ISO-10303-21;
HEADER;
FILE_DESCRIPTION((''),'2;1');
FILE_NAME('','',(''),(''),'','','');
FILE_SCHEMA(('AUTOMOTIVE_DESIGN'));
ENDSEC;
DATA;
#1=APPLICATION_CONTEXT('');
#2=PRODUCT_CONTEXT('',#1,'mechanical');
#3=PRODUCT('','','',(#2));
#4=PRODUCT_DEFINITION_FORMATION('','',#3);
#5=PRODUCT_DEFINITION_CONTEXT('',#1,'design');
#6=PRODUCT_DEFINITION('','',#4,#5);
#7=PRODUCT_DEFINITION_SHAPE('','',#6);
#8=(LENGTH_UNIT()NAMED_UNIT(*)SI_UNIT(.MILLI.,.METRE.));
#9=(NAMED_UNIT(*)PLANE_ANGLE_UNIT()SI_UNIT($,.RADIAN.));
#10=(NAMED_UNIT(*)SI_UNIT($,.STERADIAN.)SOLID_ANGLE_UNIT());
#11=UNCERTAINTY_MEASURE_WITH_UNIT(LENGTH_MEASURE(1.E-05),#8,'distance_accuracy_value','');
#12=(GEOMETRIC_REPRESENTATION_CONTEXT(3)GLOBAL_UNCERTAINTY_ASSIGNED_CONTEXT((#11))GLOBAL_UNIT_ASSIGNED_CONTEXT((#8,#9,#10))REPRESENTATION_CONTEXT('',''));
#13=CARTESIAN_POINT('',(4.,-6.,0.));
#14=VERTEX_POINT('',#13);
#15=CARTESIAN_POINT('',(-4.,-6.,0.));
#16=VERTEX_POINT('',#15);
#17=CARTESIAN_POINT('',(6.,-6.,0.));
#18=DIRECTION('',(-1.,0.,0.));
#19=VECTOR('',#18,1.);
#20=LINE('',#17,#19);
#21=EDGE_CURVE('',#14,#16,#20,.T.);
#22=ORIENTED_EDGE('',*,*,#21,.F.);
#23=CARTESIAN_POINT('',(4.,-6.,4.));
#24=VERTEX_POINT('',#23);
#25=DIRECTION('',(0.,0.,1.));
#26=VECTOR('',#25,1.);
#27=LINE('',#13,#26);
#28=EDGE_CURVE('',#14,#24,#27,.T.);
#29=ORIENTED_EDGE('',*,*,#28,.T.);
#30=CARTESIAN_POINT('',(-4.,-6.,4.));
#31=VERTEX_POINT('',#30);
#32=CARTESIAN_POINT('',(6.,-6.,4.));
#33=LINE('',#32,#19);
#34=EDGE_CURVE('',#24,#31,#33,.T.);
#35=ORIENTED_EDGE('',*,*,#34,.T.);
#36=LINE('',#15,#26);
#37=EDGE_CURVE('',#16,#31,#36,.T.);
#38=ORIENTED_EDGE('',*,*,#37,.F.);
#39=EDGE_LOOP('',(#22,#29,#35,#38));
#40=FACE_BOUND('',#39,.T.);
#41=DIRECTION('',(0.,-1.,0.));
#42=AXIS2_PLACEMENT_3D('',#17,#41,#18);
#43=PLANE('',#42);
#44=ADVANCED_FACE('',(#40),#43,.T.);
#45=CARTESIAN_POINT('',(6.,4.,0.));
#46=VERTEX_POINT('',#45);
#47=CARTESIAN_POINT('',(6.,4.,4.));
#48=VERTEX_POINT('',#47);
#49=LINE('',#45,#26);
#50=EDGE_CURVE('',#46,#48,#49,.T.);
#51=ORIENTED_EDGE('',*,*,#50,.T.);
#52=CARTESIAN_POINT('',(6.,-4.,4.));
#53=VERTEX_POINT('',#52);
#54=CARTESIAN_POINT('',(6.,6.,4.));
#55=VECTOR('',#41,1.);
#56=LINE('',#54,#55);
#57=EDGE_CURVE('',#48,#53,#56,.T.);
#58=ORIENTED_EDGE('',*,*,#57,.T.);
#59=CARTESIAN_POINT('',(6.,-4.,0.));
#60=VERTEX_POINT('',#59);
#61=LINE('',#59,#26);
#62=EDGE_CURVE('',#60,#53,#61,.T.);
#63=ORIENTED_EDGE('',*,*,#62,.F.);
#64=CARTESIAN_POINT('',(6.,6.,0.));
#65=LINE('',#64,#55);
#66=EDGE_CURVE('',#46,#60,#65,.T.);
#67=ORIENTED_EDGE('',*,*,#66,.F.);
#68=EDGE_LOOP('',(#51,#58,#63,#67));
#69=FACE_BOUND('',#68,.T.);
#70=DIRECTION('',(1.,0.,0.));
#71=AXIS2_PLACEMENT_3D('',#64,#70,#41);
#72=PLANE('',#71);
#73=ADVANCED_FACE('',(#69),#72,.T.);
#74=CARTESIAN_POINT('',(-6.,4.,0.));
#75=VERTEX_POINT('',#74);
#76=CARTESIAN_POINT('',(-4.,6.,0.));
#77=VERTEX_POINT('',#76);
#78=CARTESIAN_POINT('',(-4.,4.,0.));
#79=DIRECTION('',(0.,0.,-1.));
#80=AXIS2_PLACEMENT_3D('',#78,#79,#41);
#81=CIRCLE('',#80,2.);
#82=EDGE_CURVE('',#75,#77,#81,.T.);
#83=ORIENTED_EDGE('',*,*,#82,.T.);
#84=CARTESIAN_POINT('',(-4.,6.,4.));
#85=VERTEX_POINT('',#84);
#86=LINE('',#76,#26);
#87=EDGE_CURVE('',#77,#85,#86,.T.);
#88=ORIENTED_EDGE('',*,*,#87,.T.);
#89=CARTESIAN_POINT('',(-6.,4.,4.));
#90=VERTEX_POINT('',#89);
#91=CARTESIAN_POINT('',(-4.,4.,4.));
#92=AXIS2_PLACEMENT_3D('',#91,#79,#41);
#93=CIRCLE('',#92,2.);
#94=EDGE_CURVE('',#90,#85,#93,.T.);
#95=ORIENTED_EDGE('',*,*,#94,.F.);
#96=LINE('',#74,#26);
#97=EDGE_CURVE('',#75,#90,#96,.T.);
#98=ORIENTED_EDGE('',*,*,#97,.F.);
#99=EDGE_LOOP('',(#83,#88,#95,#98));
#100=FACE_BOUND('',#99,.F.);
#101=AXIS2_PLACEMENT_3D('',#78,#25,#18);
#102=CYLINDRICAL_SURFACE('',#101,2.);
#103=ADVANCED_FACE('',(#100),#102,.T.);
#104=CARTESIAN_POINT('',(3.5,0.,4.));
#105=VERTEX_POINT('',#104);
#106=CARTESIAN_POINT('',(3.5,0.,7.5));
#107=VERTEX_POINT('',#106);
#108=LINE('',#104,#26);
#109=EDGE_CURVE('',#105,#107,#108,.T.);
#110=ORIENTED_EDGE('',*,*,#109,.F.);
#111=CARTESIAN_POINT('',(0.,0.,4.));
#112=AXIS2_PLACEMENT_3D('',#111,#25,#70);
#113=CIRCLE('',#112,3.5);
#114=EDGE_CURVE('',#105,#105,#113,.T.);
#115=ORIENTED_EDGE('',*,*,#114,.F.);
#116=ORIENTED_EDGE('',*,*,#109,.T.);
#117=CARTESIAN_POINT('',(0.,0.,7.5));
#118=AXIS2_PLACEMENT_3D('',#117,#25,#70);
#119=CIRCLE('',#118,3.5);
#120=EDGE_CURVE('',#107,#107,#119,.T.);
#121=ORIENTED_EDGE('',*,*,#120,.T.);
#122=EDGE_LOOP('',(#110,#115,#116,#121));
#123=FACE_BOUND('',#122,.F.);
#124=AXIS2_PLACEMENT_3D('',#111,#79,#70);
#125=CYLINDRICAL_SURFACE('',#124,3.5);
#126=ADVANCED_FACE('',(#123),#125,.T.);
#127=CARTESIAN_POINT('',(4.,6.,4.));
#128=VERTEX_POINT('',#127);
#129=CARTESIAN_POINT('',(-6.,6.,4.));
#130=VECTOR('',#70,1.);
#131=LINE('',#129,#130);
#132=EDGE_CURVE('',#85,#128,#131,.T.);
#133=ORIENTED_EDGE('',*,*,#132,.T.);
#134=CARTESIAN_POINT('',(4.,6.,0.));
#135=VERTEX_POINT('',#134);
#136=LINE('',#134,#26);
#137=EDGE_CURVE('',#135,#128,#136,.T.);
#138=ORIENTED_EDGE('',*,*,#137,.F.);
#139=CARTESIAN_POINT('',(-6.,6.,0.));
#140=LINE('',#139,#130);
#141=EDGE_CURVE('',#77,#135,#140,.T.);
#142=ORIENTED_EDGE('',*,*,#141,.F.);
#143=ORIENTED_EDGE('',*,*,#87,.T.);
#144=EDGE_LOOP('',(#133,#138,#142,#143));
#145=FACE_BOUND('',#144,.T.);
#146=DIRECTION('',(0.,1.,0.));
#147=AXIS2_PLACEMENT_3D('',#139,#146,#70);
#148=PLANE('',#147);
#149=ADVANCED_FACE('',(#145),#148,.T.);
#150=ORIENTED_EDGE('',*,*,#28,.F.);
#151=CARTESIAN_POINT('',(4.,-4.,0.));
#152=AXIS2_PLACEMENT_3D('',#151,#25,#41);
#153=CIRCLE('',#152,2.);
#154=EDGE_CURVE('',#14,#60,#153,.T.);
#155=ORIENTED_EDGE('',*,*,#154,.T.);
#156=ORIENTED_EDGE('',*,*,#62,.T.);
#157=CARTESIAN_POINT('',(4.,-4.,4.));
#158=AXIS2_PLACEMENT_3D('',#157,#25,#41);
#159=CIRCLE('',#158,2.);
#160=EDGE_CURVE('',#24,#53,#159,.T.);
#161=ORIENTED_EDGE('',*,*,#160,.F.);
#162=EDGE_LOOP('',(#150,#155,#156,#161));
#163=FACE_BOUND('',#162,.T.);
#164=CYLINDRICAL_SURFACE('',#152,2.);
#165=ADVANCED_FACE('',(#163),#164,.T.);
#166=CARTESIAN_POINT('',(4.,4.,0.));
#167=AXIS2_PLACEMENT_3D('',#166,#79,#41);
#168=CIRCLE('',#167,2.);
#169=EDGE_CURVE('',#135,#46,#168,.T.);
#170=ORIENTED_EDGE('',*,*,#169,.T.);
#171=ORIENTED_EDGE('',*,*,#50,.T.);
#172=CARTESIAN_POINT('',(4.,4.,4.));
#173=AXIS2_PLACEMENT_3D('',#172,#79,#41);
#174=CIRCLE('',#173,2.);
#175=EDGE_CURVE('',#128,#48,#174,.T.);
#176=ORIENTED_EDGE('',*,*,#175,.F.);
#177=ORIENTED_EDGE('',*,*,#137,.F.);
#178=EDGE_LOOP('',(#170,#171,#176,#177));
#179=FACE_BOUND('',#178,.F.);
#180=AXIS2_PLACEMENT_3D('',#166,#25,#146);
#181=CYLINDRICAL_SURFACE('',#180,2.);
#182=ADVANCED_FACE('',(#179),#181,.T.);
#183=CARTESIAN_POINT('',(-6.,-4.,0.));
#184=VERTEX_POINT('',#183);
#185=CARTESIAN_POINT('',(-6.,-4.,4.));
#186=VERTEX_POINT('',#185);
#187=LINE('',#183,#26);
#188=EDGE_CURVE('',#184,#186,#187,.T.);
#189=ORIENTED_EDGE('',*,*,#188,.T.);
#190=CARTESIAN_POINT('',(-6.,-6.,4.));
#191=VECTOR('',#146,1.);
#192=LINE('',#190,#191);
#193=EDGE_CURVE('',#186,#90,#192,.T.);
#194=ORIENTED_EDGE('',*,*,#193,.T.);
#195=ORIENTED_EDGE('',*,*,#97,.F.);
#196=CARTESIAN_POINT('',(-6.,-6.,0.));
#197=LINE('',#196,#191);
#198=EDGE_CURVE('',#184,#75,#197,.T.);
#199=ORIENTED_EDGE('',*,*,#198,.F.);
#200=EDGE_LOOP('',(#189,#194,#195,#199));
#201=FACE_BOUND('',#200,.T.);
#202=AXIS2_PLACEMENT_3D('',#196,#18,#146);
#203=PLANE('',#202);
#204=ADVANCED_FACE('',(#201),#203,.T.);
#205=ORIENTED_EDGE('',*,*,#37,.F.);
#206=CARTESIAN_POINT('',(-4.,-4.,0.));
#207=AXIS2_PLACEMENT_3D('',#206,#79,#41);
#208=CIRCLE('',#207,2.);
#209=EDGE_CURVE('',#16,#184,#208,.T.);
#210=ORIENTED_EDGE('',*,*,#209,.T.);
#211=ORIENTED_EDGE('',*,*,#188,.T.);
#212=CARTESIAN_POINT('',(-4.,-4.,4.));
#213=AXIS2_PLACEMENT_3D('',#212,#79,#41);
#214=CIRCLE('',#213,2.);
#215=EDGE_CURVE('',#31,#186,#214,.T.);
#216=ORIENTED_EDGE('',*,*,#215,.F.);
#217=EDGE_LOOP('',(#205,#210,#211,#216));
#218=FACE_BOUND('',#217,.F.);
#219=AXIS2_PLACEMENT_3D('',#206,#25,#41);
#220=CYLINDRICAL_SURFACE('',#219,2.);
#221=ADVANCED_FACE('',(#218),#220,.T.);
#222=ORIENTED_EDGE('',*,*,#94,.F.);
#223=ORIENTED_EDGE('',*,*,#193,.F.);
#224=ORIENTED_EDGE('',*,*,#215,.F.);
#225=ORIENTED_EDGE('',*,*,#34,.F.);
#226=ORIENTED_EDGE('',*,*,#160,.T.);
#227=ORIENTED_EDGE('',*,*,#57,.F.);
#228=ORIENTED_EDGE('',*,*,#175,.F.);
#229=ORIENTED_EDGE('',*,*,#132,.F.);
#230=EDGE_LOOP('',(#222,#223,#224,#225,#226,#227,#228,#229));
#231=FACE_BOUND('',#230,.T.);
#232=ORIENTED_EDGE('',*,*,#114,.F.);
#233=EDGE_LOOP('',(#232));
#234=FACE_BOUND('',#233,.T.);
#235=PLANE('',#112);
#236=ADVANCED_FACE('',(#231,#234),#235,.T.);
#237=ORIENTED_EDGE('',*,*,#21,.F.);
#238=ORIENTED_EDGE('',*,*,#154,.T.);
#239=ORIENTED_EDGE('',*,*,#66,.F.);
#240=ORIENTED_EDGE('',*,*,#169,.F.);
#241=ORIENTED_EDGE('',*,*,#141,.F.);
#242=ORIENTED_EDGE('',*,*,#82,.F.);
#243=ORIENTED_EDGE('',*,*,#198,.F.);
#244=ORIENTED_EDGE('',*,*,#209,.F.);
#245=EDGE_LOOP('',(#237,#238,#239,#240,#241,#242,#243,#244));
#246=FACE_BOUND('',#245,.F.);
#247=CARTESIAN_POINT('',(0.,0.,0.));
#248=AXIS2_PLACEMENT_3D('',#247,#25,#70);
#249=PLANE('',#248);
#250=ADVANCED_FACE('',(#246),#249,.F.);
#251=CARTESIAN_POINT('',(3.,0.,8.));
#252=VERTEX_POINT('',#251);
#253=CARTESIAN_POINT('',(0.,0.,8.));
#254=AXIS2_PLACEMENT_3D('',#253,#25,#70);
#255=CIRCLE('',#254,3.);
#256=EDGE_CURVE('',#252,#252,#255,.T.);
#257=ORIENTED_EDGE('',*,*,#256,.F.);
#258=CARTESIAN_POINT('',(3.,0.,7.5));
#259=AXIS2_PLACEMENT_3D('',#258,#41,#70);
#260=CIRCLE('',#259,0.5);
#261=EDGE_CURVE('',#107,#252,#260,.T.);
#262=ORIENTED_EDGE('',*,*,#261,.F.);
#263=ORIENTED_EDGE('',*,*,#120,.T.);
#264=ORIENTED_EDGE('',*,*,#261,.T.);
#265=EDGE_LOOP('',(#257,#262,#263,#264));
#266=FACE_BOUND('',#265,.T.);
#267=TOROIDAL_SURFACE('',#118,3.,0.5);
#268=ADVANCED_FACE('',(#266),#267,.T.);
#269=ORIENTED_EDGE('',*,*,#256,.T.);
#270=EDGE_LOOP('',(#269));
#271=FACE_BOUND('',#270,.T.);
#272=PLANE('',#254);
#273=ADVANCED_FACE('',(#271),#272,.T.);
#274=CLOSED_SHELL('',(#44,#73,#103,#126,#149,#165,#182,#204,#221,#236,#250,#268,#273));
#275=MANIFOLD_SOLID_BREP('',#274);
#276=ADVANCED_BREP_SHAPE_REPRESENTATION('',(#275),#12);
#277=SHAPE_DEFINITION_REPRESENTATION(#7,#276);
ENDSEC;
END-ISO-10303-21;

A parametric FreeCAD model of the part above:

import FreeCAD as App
import Part
import Sketcher

V = App.Vector


def edges_at(feature, points):
    """Names of the edges that pass closest to the given points."""
    edges = feature.Shape.Edges
    near = lambda p: min(range(len(edges)), key=lambda i: edges[i].distToShape(Part.Vertex(*p))[0])
    return sorted({f"Edge{near(p) + 1}" for p in points})


def add_polygon(sketch, points):
    """Adds a closed chain of lines whose ends are joined by coincident constraints."""
    first, n = sketch.GeometryCount, len(points)
    for a, b in zip(points, points[1:] + points[:1]):
        sketch.addGeometry(Part.LineSegment(App.Vector(*a, 0), App.Vector(*b, 0)), False)
    for i in range(n):
        sketch.addConstraint(Sketcher.Constraint("Coincident", first + i, 2, first + (i + 1) % n, 1))

doc = App.newDocument("Part")
body = doc.addObject("PartDesign::Body", "Body")

# Sketch on XY plane
sketch1 = body.newObject("Sketcher::SketchObject", "Sketch")
sketch1.AttachmentSupport = (doc.getObject("XY_Plane"), [""])
sketch1.MapMode = "FlatFace"
add_polygon(sketch1, [(-6, -6), (6, -6), (6, 6), (-6, 6)])  # lines 0-3
sketch1.addConstraint(Sketcher.Constraint("Horizontal", 0))
sketch1.addConstraint(Sketcher.Constraint("Vertical", 1))
sketch1.addConstraint(Sketcher.Constraint("Horizontal", 2))
sketch1.addConstraint(Sketcher.Constraint("Vertical", 3))
sketch1.addConstraint(Sketcher.Constraint("Symmetric", 0, 2, 2, 2, -1, 1))
sketch1.addConstraint(Sketcher.Constraint("Equal", 2, 1))
sketch1.addConstraint(Sketcher.Constraint("DistanceX", 0, 1, 0, 2, 12.0))
pad1 = body.newObject("PartDesign::Pad", "Pad")
pad1.Profile = sketch1
pad1.Length = 4
doc.recompute()

fillet = body.newObject("PartDesign::Fillet", "Fillet")
fillet.Base = (pad1, edges_at(pad1, [
    (-6, 6, 2),
    (-6, -6, 2),
    (6, 6, 2),
    (6, -6, 2),
]))
fillet.Radius = 2

# Sketch on XY plane
sketch2 = body.newObject("Sketcher::SketchObject", "Sketch001")
sketch2.AttachmentSupport = (doc.getObject("XY_Plane"), [""])
sketch2.MapMode = "FlatFace"
sketch2.AttachmentOffset = App.Placement(V(0, 0, 4), App.Rotation())
sketch2.addGeometry(Part.Circle(V(0, 0, 0), V(0, 0, 1), 3.5), False)
sketch2.addConstraint(Sketcher.Constraint("Coincident", 0, 3, -1, 1))
sketch2.addConstraint(Sketcher.Constraint("Diameter", 0, 7.0))
pad2 = body.newObject("PartDesign::Pad", "Pad001")
pad2.Profile = sketch2
pad2.Length = 4
doc.recompute()

fillet2 = body.newObject("PartDesign::Fillet", "Fillet001")
fillet2.Base = (pad2, edges_at(pad2, [(-3.5, 0, 8)]))
fillet2.Radius = 0.5

doc.recompute()
